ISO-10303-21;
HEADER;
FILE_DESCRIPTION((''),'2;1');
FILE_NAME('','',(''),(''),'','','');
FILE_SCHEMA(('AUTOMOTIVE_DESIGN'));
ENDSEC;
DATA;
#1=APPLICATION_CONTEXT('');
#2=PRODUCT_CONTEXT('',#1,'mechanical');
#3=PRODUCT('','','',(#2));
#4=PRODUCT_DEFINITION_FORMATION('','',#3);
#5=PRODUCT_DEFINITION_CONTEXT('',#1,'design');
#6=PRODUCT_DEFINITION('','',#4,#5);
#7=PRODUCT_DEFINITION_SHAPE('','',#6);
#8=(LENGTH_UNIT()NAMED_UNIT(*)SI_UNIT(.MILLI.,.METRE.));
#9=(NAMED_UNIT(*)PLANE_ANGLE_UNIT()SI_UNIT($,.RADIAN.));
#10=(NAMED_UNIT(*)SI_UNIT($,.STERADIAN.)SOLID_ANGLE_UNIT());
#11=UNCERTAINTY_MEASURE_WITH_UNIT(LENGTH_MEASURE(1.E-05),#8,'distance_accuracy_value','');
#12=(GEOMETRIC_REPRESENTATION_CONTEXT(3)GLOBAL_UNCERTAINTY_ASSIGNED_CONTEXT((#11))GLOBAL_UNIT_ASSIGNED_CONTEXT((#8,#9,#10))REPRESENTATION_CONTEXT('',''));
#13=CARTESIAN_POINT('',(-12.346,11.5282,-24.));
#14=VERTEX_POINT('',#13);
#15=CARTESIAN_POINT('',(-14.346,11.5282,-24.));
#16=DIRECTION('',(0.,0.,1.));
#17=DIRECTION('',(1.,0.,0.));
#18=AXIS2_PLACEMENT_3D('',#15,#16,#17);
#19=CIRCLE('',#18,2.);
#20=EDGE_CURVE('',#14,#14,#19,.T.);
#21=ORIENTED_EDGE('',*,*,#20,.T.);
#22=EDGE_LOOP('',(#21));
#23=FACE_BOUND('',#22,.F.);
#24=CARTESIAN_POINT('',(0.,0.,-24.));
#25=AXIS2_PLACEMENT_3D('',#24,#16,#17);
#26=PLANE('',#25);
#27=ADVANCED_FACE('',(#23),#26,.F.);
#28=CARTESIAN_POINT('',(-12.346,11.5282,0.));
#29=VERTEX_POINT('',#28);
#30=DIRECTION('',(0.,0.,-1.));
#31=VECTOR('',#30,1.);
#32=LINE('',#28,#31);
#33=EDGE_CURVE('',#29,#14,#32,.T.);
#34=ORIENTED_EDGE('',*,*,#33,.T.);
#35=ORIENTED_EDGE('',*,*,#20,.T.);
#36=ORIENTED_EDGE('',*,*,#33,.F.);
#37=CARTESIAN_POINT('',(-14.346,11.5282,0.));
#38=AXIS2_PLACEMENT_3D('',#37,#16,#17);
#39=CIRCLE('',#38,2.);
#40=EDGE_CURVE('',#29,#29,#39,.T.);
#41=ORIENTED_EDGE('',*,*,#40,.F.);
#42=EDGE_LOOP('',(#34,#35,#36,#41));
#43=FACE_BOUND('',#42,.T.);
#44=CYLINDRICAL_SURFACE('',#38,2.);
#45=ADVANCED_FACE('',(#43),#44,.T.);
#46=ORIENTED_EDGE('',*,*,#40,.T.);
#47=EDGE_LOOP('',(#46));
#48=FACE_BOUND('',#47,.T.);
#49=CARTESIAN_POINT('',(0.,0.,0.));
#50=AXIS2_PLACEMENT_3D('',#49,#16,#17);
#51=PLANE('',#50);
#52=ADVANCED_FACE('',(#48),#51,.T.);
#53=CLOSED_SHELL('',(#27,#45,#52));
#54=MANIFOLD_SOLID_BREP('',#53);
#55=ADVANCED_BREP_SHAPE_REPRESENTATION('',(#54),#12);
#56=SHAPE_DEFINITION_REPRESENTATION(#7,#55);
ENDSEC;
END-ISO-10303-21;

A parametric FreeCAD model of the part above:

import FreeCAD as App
import Part
import Sketcher
from FreeCAD import Vector
Q = App.Units.Quantity

doc = App.newDocument("Part")
params = doc.addObject("Spreadsheet::Sheet", "Params")
for row, (alias, value) in enumerate([
    ("sketch1_diameter", "4 mm"),
    ("pad1_length", "24 mm"),
], start=1):
    params.set(f"A{row}", alias)
    params.set(f"B{row}", "=" + value)
    params.setAlias(f"B{row}", alias)

body = doc.addObject("PartDesign::Body", "Body")

sketch1 = doc.addObject("Sketcher::SketchObject", "Sketch")
body.addObject(sketch1)
sketch1.AttachmentSupport = (doc.XY_Plane, [""])
sketch1.MapMode = "FlatFace"
sketch1.addGeometry(Part.Circle(Vector(-14.346, 11.5282, 0), Vector(0, 0, 1), 2), False)
sketch1.addConstraint([
    Sketcher.Constraint("Diameter", 0, Q("4 mm")),
    Sketcher.Constraint("DistanceX", 0, 3, -1, 1, Q("14.346 mm")),
    Sketcher.Constraint("DistanceY", -1, 1, 0, 3, Q("11.5282 mm")),
])
sketch1.setExpression("Constraints[0]", "Params.sketch1_diameter")
pad1 = doc.addObject("PartDesign::Pad", "Pad")
body.addObject(pad1)
pad1.Profile = sketch1
pad1.setExpression("Length", "Params.pad1_length")
pad1.Reversed = True

doc.recompute()
